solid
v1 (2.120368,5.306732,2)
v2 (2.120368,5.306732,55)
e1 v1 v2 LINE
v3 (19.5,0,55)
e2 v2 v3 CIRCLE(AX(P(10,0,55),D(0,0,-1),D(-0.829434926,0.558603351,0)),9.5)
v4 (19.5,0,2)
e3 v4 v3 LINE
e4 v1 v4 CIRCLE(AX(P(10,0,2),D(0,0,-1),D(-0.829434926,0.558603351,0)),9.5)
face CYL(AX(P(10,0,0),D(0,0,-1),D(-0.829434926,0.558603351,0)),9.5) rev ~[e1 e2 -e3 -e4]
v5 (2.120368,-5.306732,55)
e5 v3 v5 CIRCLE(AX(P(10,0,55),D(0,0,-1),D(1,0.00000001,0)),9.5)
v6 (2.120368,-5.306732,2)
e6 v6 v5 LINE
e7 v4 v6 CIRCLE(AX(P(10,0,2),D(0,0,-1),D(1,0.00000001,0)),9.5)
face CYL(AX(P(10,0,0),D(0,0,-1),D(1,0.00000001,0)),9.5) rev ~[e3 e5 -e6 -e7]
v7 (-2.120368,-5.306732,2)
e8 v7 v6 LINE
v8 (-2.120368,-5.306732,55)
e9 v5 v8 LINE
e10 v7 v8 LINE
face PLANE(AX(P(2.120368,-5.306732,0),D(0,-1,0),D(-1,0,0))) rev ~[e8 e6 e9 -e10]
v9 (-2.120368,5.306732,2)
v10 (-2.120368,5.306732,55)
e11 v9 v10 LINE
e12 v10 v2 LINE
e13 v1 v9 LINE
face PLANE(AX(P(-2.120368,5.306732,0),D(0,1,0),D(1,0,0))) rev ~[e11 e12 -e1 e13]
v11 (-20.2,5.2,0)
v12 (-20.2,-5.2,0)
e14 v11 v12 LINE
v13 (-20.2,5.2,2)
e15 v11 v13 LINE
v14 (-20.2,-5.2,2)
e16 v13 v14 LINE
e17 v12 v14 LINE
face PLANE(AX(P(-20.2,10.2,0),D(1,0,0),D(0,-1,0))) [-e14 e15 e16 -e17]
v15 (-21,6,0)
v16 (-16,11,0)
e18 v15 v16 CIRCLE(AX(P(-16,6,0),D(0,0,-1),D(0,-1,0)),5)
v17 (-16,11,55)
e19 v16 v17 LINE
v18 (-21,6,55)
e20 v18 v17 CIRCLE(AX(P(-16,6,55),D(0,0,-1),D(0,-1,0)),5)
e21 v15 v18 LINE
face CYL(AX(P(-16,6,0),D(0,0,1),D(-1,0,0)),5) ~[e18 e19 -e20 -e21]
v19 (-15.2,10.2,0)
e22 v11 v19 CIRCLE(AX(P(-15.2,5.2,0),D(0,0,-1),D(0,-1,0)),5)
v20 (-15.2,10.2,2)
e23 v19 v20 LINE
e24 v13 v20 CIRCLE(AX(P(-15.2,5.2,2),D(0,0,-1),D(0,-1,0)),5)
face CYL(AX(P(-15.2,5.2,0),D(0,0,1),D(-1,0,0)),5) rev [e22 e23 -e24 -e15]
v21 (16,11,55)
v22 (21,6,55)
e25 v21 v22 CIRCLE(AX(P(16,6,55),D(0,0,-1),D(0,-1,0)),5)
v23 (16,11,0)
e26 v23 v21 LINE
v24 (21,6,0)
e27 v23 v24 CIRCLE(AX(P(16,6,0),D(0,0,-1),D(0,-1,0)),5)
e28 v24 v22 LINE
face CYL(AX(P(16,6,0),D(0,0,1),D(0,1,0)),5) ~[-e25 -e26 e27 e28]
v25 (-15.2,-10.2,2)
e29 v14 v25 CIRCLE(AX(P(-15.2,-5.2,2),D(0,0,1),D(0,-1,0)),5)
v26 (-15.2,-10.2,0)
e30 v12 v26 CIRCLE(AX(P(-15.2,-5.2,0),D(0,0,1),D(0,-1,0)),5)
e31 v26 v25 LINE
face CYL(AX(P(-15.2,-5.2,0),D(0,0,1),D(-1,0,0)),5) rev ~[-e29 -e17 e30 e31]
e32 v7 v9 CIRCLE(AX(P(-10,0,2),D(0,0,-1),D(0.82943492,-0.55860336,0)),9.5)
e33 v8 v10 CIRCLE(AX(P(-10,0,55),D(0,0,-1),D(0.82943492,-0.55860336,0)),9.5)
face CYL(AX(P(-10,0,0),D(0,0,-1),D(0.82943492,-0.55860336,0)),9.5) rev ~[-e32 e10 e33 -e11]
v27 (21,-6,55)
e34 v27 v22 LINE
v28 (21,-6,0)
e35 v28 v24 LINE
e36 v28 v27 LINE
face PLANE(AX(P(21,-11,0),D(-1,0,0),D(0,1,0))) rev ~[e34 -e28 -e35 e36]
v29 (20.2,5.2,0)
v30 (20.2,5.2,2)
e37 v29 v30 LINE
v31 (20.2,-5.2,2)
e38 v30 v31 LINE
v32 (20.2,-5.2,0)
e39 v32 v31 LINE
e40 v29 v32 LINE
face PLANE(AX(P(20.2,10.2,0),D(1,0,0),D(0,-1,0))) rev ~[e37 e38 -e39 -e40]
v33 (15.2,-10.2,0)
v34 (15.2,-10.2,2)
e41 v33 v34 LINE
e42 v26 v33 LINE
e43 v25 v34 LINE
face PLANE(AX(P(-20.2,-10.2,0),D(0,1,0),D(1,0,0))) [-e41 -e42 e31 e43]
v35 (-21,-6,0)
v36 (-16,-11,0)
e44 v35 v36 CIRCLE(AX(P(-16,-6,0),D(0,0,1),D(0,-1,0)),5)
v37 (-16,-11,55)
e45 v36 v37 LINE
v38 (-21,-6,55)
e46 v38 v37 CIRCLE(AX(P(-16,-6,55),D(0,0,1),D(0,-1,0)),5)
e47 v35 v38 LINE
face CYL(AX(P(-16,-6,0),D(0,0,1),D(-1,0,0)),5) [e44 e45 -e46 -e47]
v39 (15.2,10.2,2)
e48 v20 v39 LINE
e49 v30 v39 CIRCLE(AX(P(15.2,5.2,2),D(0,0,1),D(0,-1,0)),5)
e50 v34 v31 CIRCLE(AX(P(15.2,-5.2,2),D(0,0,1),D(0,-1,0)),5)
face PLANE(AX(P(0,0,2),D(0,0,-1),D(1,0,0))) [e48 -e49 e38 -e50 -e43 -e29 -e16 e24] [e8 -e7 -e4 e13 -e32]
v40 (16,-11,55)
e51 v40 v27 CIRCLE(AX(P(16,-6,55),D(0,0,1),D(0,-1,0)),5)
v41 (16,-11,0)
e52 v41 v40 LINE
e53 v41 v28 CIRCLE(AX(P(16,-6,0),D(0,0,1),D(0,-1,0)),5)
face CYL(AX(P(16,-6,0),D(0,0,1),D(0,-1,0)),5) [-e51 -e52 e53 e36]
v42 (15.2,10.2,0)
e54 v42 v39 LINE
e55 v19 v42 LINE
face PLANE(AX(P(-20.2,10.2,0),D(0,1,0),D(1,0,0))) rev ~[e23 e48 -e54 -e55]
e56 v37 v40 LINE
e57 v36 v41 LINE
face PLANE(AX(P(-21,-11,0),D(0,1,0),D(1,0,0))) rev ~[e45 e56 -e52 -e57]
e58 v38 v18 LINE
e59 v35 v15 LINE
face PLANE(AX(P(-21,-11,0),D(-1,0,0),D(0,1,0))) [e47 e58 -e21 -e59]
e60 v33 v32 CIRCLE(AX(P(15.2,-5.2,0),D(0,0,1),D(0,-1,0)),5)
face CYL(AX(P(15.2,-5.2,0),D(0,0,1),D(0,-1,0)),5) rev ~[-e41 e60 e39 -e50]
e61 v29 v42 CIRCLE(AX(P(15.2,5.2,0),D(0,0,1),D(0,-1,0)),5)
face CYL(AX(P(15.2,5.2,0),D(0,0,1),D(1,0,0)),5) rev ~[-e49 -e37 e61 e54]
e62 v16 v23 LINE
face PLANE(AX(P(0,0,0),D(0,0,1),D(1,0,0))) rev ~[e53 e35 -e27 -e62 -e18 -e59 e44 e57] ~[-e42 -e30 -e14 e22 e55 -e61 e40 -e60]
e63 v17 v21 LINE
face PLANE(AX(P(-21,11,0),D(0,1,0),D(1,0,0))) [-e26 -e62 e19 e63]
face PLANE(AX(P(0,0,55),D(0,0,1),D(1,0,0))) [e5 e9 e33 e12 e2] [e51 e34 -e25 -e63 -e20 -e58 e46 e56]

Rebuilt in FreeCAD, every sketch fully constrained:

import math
import FreeCAD as App
import Part
import Sketcher
from FreeCAD import Vector


def edges_at(feature, points):
    """Names of the edges that pass closest to the given points."""
    edges = feature.Shape.Edges
    near = lambda p: min(range(len(edges)), key=lambda i: edges[i].distToShape(Part.Vertex(*p))[0])
    return sorted({f"Edge{near(p) + 1}" for p in points})


def add_polygon(sketch, points):
    """Adds a closed chain of lines whose ends are joined by coincident constraints."""
    first, n = sketch.GeometryCount, len(points)
    for a, b in zip(points, points[1:] + points[:1]):
        sketch.addGeometry(Part.LineSegment(App.Vector(*a, 0), App.Vector(*b, 0)), False)
    for i in range(n):
        sketch.addConstraint(Sketcher.Constraint("Coincident", first + i, 2, first + (i + 1) % n, 1))

doc = App.newDocument("Part")
body = doc.addObject("PartDesign::Body", "Body")

# Sketch on XY plane
sketch1 = doc.addObject("Sketcher::SketchObject", "Sketch")
body.addObject(sketch1)
sketch1.AttachmentSupport = (doc.XY_Plane, [""])
sketch1.MapMode = "FlatFace"
add_polygon(sketch1, [(-21, 11), (-21, -11), (21, -11), (21, 11)])  # lines 0-3
sketch1.addGeometry(Part.LineSegment(Vector(2.1, -5.3, 0), Vector(-2.1, -5.3, 0)), False)  # 4
sketch1.addGeometry(Part.ArcOfCircle(Part.Circle(Vector(-10, 0, 0), Vector(0, 0, 1), 9.5), math.radians(34), math.radians(326)), False)  # 5
sketch1.addGeometry(Part.LineSegment(Vector(-2.1, 5.3, 0), Vector(2.1, 5.3, 0)), False)  # 6
sketch1.addGeometry(Part.ArcOfCircle(Part.Circle(Vector(10, 0, 0), Vector(0, 0, 1), 9.5), math.radians(0), math.radians(146)), False)  # 7
sketch1.addGeometry(Part.ArcOfCircle(Part.Circle(Vector(10, 0, 0), Vector(0, 0, 1), 9.5), math.radians(-146), math.radians(0)), False)  # 8
sketch1.addConstraint([
    Sketcher.Constraint("Coincident", 4, 2, 5, 2),
    Sketcher.Constraint("Coincident", 5, 1, 6, 1),
    Sketcher.Constraint("Coincident", 6, 2, 7, 2),
    Sketcher.Constraint("Tangent", 7, 1, 8, 2),
    Sketcher.Constraint("Coincident", 8, 1, 4, 1),
    Sketcher.Constraint("Vertical", 0),
    Sketcher.Constraint("Horizontal", 1),
    Sketcher.Constraint("Vertical", 2),
    Sketcher.Constraint("Horizontal", 3),
    Sketcher.Constraint("Horizontal", 4),
    Sketcher.Constraint("Horizontal", 6),
    Sketcher.Constraint("Equal", 5, 7),
    Sketcher.Constraint("Equal", 7, 8),
    Sketcher.Constraint("Symmetric", 5, 3, 7, 3, -1, 1),
    Sketcher.Constraint("Symmetric", 0, 2, 2, 2, -1, 1),
    Sketcher.Constraint("Symmetric", 4, 2, 5, 1, -1),
    Sketcher.Constraint("PointOnObject", 7, 1, -1),
    Sketcher.Constraint("Radius", 5, 9.5),
    Sketcher.Constraint("DistanceX", 1, 1, 1, 2, 42.0),
    Sketcher.Constraint("DistanceY", 0, 2, 0, 1, 22.0),
    Sketcher.Constraint("DistanceX", 5, 3, -1, 1, 10.0),
    Sketcher.Constraint("DistanceX", 4, 2, 4, 1, 4.240736),
])
pad1 = doc.addObject("PartDesign::Pad", "Pad")
body.addObject(pad1)
pad1.Profile = sketch1
pad1.Length = 55

# Sketch on XY plane
sketch2 = doc.addObject("Sketcher::SketchObject", "Sketch001")
body.addObject(sketch2)
sketch2.AttachmentSupport = (doc.XY_Plane, [""])
sketch2.MapMode = "FlatFace"
add_polygon(sketch2, [(-20, -10), (-20, 10), (20, 10), (20, -10)])  # lines 0-3
sketch2.addConstraint([
    Sketcher.Constraint("Vertical", 0),
    Sketcher.Constraint("Horizontal", 1),
    Sketcher.Constraint("Vertical", 2),
    Sketcher.Constraint("Horizontal", 3),
    Sketcher.Constraint("Symmetric", 0, 2, 2, 2, -1, 1),
    Sketcher.Constraint("DistanceX", 1, 1, 1, 2, 40.4),
    Sketcher.Constraint("DistanceY", 0, 1, 0, 2, 20.4),
])
pocket1 = doc.addObject("PartDesign::Pocket", "Pocket")
body.addObject(pocket1)
pocket1.Profile = sketch2
pocket1.Length = 2
pocket1.Reversed = True
doc.recompute()

fillet = doc.addObject("PartDesign::Fillet", "Fillet")
body.addObject(fillet)
fillet.Base = (pocket1, edges_at(pocket1, [
    (-20.2, -10.2, 1),
    (20.2, -10.2, 1),
    (20.2, 10.2, 1),
    (-20.2, 10.2, 1),
    (21, -11, 27.5),
    (-21, -11, 27.5),
    (21, 11, 27.5),
    (-21, 11, 27.5),
]))
fillet.Radius = 5

doc.recompute()
